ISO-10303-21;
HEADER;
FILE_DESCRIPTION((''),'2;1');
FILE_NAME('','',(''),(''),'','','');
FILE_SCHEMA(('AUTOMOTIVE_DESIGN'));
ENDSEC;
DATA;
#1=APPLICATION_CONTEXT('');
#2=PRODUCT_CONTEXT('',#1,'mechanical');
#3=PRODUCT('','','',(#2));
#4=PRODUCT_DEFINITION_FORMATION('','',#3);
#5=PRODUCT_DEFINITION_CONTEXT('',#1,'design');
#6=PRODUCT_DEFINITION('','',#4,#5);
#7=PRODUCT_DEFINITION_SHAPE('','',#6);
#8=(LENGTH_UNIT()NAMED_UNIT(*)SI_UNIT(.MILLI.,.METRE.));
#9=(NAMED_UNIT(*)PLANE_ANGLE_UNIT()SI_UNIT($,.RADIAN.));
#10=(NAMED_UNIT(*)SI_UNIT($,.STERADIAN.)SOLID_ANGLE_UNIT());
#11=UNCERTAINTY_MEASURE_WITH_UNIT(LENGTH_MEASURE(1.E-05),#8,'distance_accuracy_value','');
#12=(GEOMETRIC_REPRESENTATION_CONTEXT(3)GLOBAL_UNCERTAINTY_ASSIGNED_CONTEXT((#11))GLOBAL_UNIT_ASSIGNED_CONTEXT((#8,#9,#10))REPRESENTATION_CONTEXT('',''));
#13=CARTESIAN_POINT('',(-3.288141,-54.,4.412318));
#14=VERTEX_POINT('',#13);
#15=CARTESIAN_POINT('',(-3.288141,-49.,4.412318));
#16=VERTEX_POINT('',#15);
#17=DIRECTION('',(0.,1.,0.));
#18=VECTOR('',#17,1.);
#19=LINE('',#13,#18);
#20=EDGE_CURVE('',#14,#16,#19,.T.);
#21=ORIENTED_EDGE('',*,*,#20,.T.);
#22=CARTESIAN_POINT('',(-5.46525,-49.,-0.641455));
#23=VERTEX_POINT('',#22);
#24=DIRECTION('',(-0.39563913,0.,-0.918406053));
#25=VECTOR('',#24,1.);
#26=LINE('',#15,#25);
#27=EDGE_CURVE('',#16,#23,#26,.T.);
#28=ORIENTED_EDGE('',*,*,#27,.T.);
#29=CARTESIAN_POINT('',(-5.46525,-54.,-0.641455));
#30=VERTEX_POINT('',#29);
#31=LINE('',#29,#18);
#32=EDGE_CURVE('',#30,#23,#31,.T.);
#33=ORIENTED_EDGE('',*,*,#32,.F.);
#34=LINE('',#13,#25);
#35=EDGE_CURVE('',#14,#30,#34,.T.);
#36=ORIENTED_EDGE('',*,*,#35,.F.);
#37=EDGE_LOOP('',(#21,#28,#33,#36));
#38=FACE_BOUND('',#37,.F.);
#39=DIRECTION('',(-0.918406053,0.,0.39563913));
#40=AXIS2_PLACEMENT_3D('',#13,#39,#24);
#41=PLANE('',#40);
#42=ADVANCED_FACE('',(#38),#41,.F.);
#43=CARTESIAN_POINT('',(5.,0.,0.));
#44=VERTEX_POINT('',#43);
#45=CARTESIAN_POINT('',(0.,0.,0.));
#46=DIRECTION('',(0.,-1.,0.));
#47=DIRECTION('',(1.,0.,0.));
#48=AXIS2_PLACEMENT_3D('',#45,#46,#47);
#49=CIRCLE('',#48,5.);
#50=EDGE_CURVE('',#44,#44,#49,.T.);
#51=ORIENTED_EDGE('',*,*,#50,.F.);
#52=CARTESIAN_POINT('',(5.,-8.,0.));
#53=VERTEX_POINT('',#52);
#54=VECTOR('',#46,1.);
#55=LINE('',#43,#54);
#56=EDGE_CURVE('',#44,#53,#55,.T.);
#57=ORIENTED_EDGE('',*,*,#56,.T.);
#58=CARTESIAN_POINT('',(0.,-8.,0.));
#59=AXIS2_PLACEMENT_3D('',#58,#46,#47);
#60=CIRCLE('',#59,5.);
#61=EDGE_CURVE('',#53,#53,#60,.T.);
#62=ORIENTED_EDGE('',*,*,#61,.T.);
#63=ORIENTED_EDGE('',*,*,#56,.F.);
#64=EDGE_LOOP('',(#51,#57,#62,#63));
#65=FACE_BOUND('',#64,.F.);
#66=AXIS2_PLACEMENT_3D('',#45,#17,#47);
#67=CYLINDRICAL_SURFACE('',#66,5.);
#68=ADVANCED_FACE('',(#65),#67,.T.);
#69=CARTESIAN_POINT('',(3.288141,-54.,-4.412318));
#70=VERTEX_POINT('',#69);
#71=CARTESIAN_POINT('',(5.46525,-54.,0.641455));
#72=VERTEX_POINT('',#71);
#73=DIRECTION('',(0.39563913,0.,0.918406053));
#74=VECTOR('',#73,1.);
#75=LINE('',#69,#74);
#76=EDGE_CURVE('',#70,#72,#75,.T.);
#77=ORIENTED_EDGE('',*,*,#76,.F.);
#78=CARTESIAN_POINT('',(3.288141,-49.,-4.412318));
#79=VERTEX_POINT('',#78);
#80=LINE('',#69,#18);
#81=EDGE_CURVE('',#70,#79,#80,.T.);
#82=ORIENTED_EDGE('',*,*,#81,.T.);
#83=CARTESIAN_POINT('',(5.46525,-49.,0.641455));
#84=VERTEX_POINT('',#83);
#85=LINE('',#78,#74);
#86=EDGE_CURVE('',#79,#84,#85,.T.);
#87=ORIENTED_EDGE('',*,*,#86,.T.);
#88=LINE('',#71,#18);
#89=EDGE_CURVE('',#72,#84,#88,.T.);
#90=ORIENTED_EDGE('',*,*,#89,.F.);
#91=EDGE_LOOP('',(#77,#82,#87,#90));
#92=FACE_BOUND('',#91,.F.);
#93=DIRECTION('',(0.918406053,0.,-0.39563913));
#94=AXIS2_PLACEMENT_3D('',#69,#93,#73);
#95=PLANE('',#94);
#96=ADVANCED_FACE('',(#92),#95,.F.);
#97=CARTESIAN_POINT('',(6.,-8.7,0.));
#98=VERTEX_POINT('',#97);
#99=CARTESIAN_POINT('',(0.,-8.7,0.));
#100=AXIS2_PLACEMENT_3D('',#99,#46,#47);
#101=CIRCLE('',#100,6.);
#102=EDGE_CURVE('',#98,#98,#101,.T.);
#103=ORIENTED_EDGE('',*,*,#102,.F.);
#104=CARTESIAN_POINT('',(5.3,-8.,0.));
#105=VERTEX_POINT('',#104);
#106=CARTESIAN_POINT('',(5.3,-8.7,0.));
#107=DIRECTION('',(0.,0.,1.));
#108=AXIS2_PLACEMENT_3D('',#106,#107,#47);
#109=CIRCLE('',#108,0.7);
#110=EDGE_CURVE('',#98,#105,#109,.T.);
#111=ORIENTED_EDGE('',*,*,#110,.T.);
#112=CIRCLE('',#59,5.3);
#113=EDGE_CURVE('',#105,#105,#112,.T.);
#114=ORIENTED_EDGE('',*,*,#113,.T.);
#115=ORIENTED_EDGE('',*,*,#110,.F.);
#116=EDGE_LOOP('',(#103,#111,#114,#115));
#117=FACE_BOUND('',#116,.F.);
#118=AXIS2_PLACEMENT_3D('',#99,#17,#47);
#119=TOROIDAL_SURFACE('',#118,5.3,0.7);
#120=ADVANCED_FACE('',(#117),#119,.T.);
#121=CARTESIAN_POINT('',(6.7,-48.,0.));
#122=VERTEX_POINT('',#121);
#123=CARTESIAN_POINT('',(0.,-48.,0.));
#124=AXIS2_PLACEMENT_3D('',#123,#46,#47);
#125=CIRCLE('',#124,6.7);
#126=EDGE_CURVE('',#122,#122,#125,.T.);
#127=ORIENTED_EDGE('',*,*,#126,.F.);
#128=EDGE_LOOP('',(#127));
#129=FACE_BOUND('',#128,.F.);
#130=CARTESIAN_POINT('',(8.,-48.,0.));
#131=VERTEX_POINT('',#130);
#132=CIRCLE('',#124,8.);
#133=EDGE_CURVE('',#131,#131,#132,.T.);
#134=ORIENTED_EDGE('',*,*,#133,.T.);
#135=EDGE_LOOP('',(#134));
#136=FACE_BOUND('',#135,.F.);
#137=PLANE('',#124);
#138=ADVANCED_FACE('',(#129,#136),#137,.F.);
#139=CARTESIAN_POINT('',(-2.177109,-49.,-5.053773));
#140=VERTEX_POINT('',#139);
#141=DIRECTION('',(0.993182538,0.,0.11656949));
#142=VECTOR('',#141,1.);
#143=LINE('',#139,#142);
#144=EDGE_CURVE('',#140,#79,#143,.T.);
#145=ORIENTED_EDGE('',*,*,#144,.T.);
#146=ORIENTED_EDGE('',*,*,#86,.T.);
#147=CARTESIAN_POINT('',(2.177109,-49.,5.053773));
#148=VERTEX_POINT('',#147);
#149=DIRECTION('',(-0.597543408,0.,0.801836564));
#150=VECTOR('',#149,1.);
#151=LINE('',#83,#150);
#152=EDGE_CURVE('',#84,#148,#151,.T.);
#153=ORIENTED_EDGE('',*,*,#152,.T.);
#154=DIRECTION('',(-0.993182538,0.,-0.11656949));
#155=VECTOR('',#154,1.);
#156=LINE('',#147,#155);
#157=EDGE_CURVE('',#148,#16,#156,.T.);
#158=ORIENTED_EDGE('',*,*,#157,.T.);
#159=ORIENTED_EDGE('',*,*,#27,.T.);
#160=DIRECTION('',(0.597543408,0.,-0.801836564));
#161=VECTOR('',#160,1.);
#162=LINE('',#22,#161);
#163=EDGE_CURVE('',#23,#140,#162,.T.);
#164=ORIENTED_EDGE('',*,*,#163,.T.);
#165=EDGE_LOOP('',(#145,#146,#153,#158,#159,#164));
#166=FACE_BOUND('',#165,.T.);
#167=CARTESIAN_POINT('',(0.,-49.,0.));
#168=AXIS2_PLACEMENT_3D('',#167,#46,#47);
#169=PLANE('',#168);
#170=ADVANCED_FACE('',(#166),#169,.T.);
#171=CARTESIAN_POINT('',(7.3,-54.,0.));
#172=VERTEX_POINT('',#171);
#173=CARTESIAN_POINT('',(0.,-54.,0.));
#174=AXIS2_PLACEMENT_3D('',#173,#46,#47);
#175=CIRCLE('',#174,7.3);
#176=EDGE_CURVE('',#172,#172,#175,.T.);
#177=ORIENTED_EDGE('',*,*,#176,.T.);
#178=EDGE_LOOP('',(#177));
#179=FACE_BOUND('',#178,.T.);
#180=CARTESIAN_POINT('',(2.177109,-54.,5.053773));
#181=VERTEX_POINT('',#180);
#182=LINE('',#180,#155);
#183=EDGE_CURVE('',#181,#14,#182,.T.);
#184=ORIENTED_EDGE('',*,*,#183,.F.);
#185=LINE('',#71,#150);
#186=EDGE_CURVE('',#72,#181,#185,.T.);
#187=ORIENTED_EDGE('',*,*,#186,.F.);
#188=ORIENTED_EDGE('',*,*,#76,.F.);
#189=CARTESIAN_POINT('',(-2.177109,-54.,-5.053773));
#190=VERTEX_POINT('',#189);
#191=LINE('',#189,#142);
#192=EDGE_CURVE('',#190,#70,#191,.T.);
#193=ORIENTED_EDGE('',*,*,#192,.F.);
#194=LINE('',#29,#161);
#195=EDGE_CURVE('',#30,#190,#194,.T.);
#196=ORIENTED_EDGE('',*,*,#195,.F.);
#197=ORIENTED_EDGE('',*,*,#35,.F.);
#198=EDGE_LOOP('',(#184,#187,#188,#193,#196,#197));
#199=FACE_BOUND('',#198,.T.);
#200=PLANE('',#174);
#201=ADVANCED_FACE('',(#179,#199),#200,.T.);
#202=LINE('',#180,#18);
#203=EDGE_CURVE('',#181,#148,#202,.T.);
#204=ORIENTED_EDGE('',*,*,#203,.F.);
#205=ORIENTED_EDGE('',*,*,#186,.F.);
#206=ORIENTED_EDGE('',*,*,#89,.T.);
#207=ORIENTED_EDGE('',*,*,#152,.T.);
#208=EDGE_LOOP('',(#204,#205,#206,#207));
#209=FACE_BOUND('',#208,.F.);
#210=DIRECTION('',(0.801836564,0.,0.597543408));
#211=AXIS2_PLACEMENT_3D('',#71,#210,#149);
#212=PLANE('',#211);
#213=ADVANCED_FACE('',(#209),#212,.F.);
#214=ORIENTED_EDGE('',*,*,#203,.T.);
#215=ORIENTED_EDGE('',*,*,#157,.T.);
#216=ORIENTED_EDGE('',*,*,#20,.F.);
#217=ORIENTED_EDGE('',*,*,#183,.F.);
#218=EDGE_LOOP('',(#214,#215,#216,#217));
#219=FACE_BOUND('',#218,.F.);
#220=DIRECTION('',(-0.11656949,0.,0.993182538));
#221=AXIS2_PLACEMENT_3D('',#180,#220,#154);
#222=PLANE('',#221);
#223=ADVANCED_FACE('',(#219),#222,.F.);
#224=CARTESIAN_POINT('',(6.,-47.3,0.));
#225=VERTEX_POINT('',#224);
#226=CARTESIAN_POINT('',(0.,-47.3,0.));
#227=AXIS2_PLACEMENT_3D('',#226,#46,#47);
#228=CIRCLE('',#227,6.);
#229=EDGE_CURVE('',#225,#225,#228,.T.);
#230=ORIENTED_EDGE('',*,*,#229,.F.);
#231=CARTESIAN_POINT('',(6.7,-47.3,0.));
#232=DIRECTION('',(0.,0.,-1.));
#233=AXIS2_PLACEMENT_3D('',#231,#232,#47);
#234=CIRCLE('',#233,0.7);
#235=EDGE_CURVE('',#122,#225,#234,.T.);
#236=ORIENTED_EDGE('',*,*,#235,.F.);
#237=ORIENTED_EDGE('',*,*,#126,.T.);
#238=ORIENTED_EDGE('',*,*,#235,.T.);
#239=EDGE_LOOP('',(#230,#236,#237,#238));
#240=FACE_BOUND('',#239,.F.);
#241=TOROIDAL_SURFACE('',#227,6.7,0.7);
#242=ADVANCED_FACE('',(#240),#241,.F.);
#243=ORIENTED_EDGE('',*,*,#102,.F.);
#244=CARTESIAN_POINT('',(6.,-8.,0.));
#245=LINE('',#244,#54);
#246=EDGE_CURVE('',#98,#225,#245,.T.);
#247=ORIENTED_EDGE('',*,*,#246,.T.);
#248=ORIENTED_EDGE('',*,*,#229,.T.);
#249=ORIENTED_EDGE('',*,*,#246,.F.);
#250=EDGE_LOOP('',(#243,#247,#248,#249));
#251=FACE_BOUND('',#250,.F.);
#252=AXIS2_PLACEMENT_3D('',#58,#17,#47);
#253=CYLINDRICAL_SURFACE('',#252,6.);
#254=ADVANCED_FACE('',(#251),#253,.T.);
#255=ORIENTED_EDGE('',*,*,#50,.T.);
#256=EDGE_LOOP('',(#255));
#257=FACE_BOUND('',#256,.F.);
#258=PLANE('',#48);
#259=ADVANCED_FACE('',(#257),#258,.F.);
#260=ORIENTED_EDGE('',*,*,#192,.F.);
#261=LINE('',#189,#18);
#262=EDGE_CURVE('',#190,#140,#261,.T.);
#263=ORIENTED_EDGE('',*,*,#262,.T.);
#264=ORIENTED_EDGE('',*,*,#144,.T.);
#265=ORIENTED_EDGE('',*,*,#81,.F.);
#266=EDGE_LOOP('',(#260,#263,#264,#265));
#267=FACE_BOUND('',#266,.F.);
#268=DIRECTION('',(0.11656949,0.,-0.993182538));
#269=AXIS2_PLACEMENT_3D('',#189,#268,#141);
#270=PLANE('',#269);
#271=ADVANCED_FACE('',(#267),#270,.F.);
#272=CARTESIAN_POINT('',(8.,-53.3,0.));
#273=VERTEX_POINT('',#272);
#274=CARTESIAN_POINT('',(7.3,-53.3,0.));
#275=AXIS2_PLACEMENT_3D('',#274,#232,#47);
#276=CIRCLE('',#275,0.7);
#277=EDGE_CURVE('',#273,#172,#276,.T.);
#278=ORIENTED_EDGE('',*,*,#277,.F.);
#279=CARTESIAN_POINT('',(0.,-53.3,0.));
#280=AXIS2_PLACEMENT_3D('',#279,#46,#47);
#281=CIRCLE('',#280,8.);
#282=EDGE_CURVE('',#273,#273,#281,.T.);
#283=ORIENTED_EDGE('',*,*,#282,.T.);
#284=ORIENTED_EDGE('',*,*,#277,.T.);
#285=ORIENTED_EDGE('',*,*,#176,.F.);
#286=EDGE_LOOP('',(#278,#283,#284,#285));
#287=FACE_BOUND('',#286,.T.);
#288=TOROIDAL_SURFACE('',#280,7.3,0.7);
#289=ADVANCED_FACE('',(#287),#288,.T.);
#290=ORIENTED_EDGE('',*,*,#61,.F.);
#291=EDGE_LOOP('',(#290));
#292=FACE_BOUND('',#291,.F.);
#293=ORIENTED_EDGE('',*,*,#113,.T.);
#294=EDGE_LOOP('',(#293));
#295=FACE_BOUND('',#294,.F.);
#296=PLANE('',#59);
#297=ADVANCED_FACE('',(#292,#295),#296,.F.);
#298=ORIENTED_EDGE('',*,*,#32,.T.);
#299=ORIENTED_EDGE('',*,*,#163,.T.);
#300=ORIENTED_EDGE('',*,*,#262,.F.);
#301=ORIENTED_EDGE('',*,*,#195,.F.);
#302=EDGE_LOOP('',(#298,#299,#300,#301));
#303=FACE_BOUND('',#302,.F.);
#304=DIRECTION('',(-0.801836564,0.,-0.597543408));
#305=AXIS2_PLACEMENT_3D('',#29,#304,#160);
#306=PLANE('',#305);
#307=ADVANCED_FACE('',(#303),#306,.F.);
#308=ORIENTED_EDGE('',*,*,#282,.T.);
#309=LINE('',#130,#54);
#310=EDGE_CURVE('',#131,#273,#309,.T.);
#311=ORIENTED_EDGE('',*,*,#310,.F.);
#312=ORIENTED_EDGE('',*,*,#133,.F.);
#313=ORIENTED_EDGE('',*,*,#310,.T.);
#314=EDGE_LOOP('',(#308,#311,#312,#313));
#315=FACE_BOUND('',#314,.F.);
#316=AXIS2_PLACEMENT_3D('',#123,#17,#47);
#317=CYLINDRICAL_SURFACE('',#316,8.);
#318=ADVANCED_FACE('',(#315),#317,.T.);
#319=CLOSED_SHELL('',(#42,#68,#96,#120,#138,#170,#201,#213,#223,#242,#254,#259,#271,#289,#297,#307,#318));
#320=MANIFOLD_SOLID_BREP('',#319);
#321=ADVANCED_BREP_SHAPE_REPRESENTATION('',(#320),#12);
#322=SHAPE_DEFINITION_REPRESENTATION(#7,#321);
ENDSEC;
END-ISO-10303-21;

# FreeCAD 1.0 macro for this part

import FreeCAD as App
import Part
import Sketcher
Q = App.Units.Quantity


def edges_at(feature, points):
    """Names of the edges that pass closest to the given points."""
    edges = feature.Shape.Edges
    near = lambda p: min(range(len(edges)), key=lambda i: edges[i].distToShape(Part.Vertex(*p))[0])
    return sorted({f"Edge{near(p) + 1}" for p in points})


def add_polygon(sketch, points):
    """Adds a closed chain of lines whose ends are joined by coincident constraints."""
    first, n = sketch.GeometryCount, len(points)
    for a, b in zip(points, points[1:] + points[:1]):
        sketch.addGeometry(Part.LineSegment(App.Vector(*a, 0), App.Vector(*b, 0)), False)
    for i in range(n):
        sketch.addConstraint(Sketcher.Constraint("Coincident", first + i, 2, first + (i + 1) % n, 1))

doc = App.newDocument("Part")
params = doc.addObject("Spreadsheet::Sheet", "Params")
for row, (alias, value) in enumerate([
    ("sketch1_diameter", "10 mm"),
    ("pad1_length", "8 mm"),
    ("sketch2_diameter", "12 mm"),
    ("pad2_length", "40 mm"),
    ("sketch3_diameter", "16 mm"),
    ("pad3_length", "6 mm"),
    ("pocket1_length", "5 mm"),
    ("fillet_radius", "0.7 mm"),
], start=1):
    params.set(f"A{row}", alias)
    params.set(f"B{row}", "=" + value)
    params.setAlias(f"B{row}", alias)

body = doc.addObject("PartDesign::Body", "Body")

# Sketch on XZ plane
sketch1 = body.newObject("Sketcher::SketchObject", "Sketch")
sketch1.AttachmentSupport = (doc.getObject("XZ_Plane"), [""])
sketch1.MapMode = "FlatFace"
sketch1.addGeometry(Part.Circle(App.Vector(0, 0, 0), App.Vector(0, 0, 1), 5), False)
sketch1.addConstraint(Sketcher.Constraint("Coincident", 0, 3, -1, 1))
sketch1.addConstraint(Sketcher.Constraint("Diameter", 0, Q("10 mm")))
sketch1.setExpression("Constraints[1]", "Params.sketch1_diameter")
pad1 = body.newObject("PartDesign::Pad", "Pad")
pad1.Profile = sketch1
pad1.setExpression("Length", "Params.pad1_length")

# Sketch on XZ plane
sketch2 = body.newObject("Sketcher::SketchObject", "Sketch001")
sketch2.AttachmentSupport = (doc.getObject("XZ_Plane"), [""])
sketch2.MapMode = "FlatFace"
sketch2.AttachmentOffset = App.Placement(App.Vector(0, 0, 8), App.Rotation())
sketch2.addGeometry(Part.Circle(App.Vector(0, 0, 0), App.Vector(0, 0, 1), 6), False)
sketch2.addConstraint(Sketcher.Constraint("Coincident", 0, 3, -1, 1))
sketch2.addConstraint(Sketcher.Constraint("Diameter", 0, Q("12 mm")))
sketch2.setExpression("Constraints[1]", "Params.sketch2_diameter")
pad2 = body.newObject("PartDesign::Pad", "Pad001")
pad2.Profile = sketch2
pad2.setExpression("Length", "Params.pad2_length")

# Sketch on XZ plane
sketch3 = body.newObject("Sketcher::SketchObject", "Sketch002")
sketch3.AttachmentSupport = (doc.getObject("XZ_Plane"), [""])
sketch3.MapMode = "FlatFace"
sketch3.AttachmentOffset = App.Placement(App.Vector(0, 0, 48), App.Rotation())
sketch3.addGeometry(Part.Circle(App.Vector(0, 0, 0), App.Vector(0, 0, 1), 8), False)
sketch3.addConstraint(Sketcher.Constraint("Coincident", 0, 3, -1, 1))
sketch3.addConstraint(Sketcher.Constraint("Diameter", 0, Q("16 mm")))
sketch3.setExpression("Constraints[1]", "Params.sketch3_diameter")
pad3 = body.newObject("PartDesign::Pad", "Pad002")
pad3.Profile = sketch3
pad3.setExpression("Length", "Params.pad3_length")

# Sketch on XZ plane
sketch4 = body.newObject("Sketcher::SketchObject", "Sketch003")
sketch4.AttachmentSupport = (doc.getObject("XZ_Plane"), [""])
sketch4.MapMode = "FlatFace"
sketch4.AttachmentOffset = App.Placement(App.Vector(0, 0, 54), App.Rotation())
add_polygon(sketch4, [(3, -4), (5, 1), (2, 5), (-3, 4), (-5, -1), (-2, -5)])  # lines 0-5
sketch4.addConstraint(Sketcher.Constraint("Symmetric", 0, 2, 3, 2, -1, 1))
sketch4.addConstraint(Sketcher.Constraint("Symmetric", 1, 2, 4, 2, -1, 1))
sketch4.addConstraint(Sketcher.Constraint("Symmetric", 2, 2, 5, 2, -1, 1))
sketch4.addConstraint(Sketcher.Constraint("Equal", 0, 1))
sketch4.addConstraint(Sketcher.Constraint("Equal", 1, 2))
sketch4.addConstraint(Sketcher.Constraint("DistanceX", 3, 2, 0, 2, Q("10.9305 mm")))
sketch4.addConstraint(Sketcher.Constraint("DistanceX", -1, 1, 1, 2, Q("2.177109 mm")))
sketch4.addConstraint(Sketcher.Constraint("DistanceX", 2, 2, -1, 1, Q("3.288141 mm")))
sketch4.addConstraint(Sketcher.Constraint("DistanceY", -1, 1, 2, 2, Q("4.412318 mm")))
pocket1 = body.newObject("PartDesign::Pocket", "Pocket")
pocket1.Profile = sketch4
pocket1.setExpression("Length", "Params.pocket1_length")
doc.recompute()

fillet = body.newObject("PartDesign::Fillet", "Fillet")
fillet.Base = (pocket1, edges_at(pocket1, [
    (6, -28, 0),
    (-6, -8, 0),
    (-6, -48, 0),
    (-8, -54, 0),
]))
fillet.setExpression("Radius", "Params.fillet_radius")

doc.recompute()
